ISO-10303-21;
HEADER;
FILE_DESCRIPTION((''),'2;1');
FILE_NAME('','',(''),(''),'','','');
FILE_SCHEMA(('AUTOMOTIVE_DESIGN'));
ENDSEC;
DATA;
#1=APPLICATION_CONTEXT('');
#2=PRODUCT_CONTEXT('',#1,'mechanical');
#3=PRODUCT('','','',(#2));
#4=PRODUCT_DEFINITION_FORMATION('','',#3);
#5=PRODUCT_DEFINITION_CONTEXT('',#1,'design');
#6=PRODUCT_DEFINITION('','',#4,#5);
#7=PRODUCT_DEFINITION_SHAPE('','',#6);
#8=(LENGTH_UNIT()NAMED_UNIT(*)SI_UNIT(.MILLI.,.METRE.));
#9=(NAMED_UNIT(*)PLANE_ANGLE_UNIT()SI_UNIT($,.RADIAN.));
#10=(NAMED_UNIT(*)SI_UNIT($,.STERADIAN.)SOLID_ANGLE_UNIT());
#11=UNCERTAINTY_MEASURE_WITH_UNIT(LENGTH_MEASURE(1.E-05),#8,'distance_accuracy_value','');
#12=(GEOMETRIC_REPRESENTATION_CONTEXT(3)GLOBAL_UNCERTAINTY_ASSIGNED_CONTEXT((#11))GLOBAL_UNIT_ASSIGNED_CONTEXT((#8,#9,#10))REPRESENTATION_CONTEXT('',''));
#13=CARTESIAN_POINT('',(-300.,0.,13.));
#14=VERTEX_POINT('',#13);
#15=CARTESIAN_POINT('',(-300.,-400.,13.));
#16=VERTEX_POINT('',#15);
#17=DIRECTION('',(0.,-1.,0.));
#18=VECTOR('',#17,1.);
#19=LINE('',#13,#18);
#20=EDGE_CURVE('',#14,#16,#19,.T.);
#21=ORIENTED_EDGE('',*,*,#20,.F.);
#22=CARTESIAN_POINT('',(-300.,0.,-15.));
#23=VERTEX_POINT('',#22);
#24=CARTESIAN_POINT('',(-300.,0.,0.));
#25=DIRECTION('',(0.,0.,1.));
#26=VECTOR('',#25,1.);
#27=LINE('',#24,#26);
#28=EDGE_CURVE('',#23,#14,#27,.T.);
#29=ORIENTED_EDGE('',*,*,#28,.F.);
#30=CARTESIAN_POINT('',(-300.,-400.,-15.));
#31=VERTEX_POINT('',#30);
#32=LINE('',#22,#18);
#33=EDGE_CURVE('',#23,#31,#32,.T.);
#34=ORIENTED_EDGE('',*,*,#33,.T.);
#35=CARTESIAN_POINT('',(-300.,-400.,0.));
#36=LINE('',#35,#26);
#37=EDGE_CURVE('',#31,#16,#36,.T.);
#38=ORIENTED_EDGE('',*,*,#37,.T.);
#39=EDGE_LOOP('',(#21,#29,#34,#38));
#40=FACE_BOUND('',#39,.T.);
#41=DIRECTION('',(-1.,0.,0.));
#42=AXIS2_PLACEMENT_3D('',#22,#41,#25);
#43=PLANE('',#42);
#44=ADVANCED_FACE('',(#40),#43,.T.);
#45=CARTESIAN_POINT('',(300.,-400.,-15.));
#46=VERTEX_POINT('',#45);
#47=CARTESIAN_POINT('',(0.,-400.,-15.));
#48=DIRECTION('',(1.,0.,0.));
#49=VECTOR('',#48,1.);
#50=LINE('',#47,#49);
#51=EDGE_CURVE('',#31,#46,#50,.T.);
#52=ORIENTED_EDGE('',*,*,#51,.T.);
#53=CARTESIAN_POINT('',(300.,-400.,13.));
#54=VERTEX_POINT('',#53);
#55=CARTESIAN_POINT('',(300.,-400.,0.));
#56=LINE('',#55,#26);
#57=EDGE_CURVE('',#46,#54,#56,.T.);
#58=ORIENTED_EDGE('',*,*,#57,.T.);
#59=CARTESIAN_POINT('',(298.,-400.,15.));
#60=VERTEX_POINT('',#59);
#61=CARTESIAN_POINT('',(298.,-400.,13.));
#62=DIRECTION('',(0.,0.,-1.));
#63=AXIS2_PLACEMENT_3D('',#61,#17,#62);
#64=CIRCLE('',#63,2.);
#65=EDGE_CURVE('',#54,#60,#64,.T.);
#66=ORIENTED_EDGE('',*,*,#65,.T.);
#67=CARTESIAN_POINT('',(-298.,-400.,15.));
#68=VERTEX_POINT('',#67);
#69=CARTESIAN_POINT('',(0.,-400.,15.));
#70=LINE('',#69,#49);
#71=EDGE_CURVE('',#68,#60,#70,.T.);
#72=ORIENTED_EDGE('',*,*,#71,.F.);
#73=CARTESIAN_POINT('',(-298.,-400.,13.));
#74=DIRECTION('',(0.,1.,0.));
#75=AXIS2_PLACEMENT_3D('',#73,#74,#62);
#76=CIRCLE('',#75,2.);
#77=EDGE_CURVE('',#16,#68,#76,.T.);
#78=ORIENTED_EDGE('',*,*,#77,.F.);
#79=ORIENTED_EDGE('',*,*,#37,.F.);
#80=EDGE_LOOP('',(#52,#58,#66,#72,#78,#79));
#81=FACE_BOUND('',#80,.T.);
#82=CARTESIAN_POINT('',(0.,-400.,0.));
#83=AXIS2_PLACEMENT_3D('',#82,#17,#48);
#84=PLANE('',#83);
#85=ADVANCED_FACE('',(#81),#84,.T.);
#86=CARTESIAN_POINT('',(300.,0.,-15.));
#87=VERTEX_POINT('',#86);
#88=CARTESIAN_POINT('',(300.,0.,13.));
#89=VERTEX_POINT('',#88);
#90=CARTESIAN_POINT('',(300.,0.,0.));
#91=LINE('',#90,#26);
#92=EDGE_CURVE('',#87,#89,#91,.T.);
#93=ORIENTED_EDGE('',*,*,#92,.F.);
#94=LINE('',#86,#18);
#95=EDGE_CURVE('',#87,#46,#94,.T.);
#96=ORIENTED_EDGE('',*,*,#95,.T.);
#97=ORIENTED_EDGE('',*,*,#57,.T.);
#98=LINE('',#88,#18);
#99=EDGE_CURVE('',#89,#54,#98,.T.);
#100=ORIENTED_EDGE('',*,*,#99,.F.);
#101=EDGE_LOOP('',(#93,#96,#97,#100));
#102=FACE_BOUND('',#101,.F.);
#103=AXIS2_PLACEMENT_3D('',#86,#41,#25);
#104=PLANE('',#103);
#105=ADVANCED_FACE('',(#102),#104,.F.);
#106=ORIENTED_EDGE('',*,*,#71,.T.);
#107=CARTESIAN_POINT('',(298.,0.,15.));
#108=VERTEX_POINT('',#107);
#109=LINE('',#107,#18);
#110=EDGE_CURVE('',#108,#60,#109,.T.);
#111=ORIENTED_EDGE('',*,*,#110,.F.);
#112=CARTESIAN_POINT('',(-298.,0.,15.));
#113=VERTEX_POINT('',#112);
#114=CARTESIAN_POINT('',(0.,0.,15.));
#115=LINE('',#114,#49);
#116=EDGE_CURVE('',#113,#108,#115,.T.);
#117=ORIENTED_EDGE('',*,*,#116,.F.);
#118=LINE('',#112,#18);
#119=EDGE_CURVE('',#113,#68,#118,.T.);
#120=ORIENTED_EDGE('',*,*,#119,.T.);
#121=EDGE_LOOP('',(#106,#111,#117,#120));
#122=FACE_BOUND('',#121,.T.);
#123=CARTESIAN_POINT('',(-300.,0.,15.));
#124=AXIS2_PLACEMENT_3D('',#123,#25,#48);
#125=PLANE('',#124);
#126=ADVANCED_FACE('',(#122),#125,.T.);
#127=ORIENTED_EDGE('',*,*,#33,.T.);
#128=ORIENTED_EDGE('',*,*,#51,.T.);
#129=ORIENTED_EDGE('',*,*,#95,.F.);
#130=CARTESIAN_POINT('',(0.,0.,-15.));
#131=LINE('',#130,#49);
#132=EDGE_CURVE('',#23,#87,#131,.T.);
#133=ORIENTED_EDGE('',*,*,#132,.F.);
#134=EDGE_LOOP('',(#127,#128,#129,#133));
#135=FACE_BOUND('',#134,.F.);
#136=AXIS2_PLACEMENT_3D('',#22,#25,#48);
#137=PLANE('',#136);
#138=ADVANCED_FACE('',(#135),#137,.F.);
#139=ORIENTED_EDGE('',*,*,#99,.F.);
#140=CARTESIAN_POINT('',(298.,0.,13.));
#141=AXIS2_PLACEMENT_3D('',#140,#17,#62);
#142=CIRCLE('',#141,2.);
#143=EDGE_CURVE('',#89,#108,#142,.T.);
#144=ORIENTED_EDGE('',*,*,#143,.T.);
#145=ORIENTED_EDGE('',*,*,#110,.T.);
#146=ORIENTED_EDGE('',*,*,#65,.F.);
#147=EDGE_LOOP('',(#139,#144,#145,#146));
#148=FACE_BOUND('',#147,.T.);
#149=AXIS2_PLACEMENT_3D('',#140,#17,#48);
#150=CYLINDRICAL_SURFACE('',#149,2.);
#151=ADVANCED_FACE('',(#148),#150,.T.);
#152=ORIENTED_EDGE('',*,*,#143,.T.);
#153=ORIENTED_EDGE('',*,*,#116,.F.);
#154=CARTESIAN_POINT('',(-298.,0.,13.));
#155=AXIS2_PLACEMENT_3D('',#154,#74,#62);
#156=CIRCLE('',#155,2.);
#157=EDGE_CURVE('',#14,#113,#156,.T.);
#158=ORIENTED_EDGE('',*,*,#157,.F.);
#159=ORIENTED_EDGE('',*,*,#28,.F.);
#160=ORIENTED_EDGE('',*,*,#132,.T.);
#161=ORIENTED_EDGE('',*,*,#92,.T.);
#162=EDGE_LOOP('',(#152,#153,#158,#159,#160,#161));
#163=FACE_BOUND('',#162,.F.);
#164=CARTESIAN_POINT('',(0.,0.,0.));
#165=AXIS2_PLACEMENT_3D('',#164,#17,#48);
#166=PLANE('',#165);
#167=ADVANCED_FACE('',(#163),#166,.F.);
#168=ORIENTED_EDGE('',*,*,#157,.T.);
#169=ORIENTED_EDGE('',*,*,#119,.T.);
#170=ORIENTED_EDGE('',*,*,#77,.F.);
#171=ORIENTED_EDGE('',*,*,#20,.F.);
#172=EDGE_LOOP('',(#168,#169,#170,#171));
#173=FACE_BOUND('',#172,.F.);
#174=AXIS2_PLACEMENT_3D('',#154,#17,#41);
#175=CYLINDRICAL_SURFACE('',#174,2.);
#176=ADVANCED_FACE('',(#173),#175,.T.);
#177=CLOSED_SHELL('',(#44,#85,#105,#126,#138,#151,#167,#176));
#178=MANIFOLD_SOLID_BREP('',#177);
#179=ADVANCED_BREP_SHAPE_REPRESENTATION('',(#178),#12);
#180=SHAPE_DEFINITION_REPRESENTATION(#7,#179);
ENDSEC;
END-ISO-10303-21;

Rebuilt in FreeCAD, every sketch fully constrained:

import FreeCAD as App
import Part
import Sketcher
from FreeCAD import Vector
Q = App.Units.Quantity


def edges_at(feature, points):
    """Names of the edges that pass closest to the given points."""
    edges = feature.Shape.Edges
    near = lambda p: min(range(len(edges)), key=lambda i: edges[i].distToShape(Part.Vertex(*p))[0])
    return sorted({f"Edge{near(p) + 1}" for p in points})


def add_polygon(sketch, points):
    """Adds a closed chain of lines whose ends are joined by coincident constraints."""
    first, n = sketch.GeometryCount, len(points)
    for a, b in zip(points, points[1:] + points[:1]):
        sketch.addGeometry(Part.LineSegment(App.Vector(*a, 0), App.Vector(*b, 0)), False)
    for i in range(n):
        sketch.addConstraint(Sketcher.Constraint("Coincident", first + i, 2, first + (i + 1) % n, 1))

doc = App.newDocument("Part")
body = doc.addObject("PartDesign::Body", "Body")

# Sketch on XZ plane
sketch1 = body.newObject("Sketcher::SketchObject", "Sketch")
sketch1.AttachmentSupport = (doc.getObject("XZ_Plane"), [""])
sketch1.MapMode = "FlatFace"
add_polygon(sketch1, [(-300, 15), (-300, -15), (300, -15), (300, 15)])  # lines 0-3
sketch1.addConstraint(Sketcher.Constraint("Vertical", 0))
sketch1.addConstraint(Sketcher.Constraint("Horizontal", 1))
sketch1.addConstraint(Sketcher.Constraint("Vertical", 2))
sketch1.addConstraint(Sketcher.Constraint("Horizontal", 3))
sketch1.addConstraint(Sketcher.Constraint("Symmetric", 0, 2, 2, 2, -1, 1))
sketch1.addConstraint(Sketcher.Constraint("DistanceX", 1, 1, 1, 2, Q("600 mm")))
sketch1.addConstraint(Sketcher.Constraint("DistanceY", 0, 2, 0, 1, Q("30 mm")))
pad1 = body.newObject("PartDesign::Pad", "Pad")
pad1.Profile = sketch1
pad1.Length = 400
doc.recompute()

fillet = body.newObject("PartDesign::Fillet", "Fillet")
fillet.Base = (pad1, edges_at(pad1, [(300, -200, 15), (-300, -200, 15)]))
fillet.Radius = 2

doc.recompute()
